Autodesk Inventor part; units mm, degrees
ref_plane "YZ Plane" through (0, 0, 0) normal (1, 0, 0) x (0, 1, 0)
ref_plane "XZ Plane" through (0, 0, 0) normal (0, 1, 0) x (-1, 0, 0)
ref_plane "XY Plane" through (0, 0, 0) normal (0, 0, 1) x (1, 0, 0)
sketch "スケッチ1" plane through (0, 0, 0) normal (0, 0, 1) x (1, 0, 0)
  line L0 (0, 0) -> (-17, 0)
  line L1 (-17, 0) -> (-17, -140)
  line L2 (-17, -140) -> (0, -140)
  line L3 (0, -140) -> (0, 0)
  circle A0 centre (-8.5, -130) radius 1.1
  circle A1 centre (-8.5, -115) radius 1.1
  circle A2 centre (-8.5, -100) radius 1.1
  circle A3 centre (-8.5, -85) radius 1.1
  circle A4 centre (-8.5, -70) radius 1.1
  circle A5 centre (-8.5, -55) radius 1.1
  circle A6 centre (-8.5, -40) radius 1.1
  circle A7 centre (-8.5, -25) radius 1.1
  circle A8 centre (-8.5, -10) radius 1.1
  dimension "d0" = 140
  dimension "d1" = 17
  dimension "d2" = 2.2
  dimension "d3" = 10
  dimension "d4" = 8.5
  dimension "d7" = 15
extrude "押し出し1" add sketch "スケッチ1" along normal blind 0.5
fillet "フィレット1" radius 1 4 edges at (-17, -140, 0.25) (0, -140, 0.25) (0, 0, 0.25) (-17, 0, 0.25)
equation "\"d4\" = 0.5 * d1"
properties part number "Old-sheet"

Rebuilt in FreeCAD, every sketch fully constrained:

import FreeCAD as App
import Part
import Sketcher

V = App.Vector


def edges_at(feature, points):
    """Names of the edges that pass closest to the given points."""
    edges = feature.Shape.Edges
    near = lambda p: min(range(len(edges)), key=lambda i: edges[i].distToShape(Part.Vertex(*p))[0])
    return sorted({f"Edge{near(p) + 1}" for p in points})

doc = App.newDocument("Part")
body = doc.addObject("PartDesign::Body", "Body")

sketch1 = doc.addObject("Sketcher::SketchObject", "Sketch")
body.addObject(sketch1)
sketch1.AttachmentSupport = (doc.XY_Plane, [""])
sketch1.MapMode = "FlatFace"
sketch1.addGeometry(Part.LineSegment(V(0, -140, 0), V(0, 0, 0)), False)
sketch1.addGeometry(Part.LineSegment(V(0, 0, 0), V(-17, 0, 0)), False)
sketch1.addGeometry(Part.LineSegment(V(-17, 0, 0), V(-17, -140, 0)), False)
sketch1.addGeometry(Part.LineSegment(V(-17, -140, 0), V(0, -140, 0)), False)
sketch1.addGeometry(Part.Circle(V(-8.5, -130, 0), V(0, 0, 1), 1.1), False)
sketch1.addGeometry(Part.Circle(V(-8.5, -115, 0), V(0, 0, 1), 1.1), False)
sketch1.addGeometry(Part.Circle(V(-8.5, -100, 0), V(0, 0, 1), 1.1), False)
sketch1.addGeometry(Part.Circle(V(-8.5, -85, 0), V(0, 0, 1), 1.1), False)
sketch1.addGeometry(Part.Circle(V(-8.5, -70, 0), V(0, 0, 1), 1.1), False)
sketch1.addGeometry(Part.Circle(V(-8.5, -55, 0), V(0, 0, 1), 1.1), False)
sketch1.addGeometry(Part.Circle(V(-8.5, -40, 0), V(0, 0, 1), 1.1), False)
sketch1.addGeometry(Part.Circle(V(-8.5, -25, 0), V(0, 0, 1), 1.1), False)
sketch1.addGeometry(Part.Circle(V(-8.5, -10, 0), V(0, 0, 1), 1.1), False)
sketch1.addConstraint(Sketcher.Constraint("Coincident", 0, 2, 1, 1))
sketch1.addConstraint(Sketcher.Constraint("Coincident", 1, 2, 2, 1))
sketch1.addConstraint(Sketcher.Constraint("Coincident", 2, 2, 3, 1))
sketch1.addConstraint(Sketcher.Constraint("Coincident", 3, 2, 0, 1))
sketch1.addConstraint(Sketcher.Constraint("Vertical", 0))
sketch1.addConstraint(Sketcher.Constraint("Horizontal", 1))
sketch1.addConstraint(Sketcher.Constraint("Vertical", 2))
sketch1.addConstraint(Sketcher.Constraint("Horizontal", 3))
sketch1.addConstraint(Sketcher.Constraint("Coincident", 0, 2, -1, 1))
sketch1.addConstraint(Sketcher.Constraint("Equal", 4, 5))
sketch1.addConstraint(Sketcher.Constraint("Equal", 5, 6))
sketch1.addConstraint(Sketcher.Constraint("Equal", 6, 7))
sketch1.addConstraint(Sketcher.Constraint("Equal", 7, 8))
sketch1.addConstraint(Sketcher.Constraint("Equal", 8, 9))
sketch1.addConstraint(Sketcher.Constraint("Equal", 9, 10))
sketch1.addConstraint(Sketcher.Constraint("Equal", 10, 11))
sketch1.addConstraint(Sketcher.Constraint("Equal", 11, 12))
sketch1.addConstraint(Sketcher.Constraint("Vertical", 4, 3, 5, 3))
sketch1.addConstraint(Sketcher.Constraint("Vertical", 5, 3, 6, 3))
sketch1.addConstraint(Sketcher.Constraint("Vertical", 6, 3, 7, 3))
sketch1.addConstraint(Sketcher.Constraint("Vertical", 7, 3, 8, 3))
sketch1.addConstraint(Sketcher.Constraint("Vertical", 8, 3, 9, 3))
sketch1.addConstraint(Sketcher.Constraint("Vertical", 9, 3, 10, 3))
sketch1.addConstraint(Sketcher.Constraint("Vertical", 10, 3, 11, 3))
sketch1.addConstraint(Sketcher.Constraint("Vertical", 11, 3, 12, 3))
sketch1.addConstraint(Sketcher.Constraint("Diameter", 4, 2.2))
sketch1.addConstraint(Sketcher.Constraint("DistanceX", 1, 2, 1, 1, 17.0))
sketch1.addConstraint(Sketcher.Constraint("DistanceY", 0, 1, 0, 2, 140.0))
sketch1.addConstraint(Sketcher.Constraint("DistanceY", 12, 3, -1, 1, 10.0))
sketch1.addConstraint(Sketcher.Constraint("DistanceY", 4, 3, 5, 3, 15.0))
sketch1.addConstraint(Sketcher.Constraint("DistanceY", 5, 3, 6, 3, 15.0))
sketch1.addConstraint(Sketcher.Constraint("DistanceY", 6, 3, 7, 3, 15.0))
sketch1.addConstraint(Sketcher.Constraint("DistanceY", 7, 3, 8, 3, 15.0))
sketch1.addConstraint(Sketcher.Constraint("DistanceY", 8, 3, 9, 3, 15.0))
sketch1.addConstraint(Sketcher.Constraint("DistanceY", 9, 3, 10, 3, 15.0))
sketch1.addConstraint(Sketcher.Constraint("DistanceY", 10, 3, 11, 3, 15.0))
sketch1.addConstraint(Sketcher.Constraint("DistanceY", 11, 3, 12, 3, 15.0))
sketch1.addConstraint(Sketcher.Constraint("DistanceX", 4, 3, -1, 1, 8.5))
pad1 = doc.addObject("PartDesign::Pad", "Pad")
body.addObject(pad1)
pad1.Profile = sketch1
pad1.Length = 0.5
doc.recompute()

fillet = doc.addObject("PartDesign::Fillet", "Fillet")
body.addObject(fillet)
fillet.Base = (pad1, edges_at(pad1, [
    (-17, -140, 0.25),
    (0, -140, 0.25),
    (0, 0, 0.25),
    (-17, 0, 0.25),
]))
fillet.Radius = 1

doc.recompute()
